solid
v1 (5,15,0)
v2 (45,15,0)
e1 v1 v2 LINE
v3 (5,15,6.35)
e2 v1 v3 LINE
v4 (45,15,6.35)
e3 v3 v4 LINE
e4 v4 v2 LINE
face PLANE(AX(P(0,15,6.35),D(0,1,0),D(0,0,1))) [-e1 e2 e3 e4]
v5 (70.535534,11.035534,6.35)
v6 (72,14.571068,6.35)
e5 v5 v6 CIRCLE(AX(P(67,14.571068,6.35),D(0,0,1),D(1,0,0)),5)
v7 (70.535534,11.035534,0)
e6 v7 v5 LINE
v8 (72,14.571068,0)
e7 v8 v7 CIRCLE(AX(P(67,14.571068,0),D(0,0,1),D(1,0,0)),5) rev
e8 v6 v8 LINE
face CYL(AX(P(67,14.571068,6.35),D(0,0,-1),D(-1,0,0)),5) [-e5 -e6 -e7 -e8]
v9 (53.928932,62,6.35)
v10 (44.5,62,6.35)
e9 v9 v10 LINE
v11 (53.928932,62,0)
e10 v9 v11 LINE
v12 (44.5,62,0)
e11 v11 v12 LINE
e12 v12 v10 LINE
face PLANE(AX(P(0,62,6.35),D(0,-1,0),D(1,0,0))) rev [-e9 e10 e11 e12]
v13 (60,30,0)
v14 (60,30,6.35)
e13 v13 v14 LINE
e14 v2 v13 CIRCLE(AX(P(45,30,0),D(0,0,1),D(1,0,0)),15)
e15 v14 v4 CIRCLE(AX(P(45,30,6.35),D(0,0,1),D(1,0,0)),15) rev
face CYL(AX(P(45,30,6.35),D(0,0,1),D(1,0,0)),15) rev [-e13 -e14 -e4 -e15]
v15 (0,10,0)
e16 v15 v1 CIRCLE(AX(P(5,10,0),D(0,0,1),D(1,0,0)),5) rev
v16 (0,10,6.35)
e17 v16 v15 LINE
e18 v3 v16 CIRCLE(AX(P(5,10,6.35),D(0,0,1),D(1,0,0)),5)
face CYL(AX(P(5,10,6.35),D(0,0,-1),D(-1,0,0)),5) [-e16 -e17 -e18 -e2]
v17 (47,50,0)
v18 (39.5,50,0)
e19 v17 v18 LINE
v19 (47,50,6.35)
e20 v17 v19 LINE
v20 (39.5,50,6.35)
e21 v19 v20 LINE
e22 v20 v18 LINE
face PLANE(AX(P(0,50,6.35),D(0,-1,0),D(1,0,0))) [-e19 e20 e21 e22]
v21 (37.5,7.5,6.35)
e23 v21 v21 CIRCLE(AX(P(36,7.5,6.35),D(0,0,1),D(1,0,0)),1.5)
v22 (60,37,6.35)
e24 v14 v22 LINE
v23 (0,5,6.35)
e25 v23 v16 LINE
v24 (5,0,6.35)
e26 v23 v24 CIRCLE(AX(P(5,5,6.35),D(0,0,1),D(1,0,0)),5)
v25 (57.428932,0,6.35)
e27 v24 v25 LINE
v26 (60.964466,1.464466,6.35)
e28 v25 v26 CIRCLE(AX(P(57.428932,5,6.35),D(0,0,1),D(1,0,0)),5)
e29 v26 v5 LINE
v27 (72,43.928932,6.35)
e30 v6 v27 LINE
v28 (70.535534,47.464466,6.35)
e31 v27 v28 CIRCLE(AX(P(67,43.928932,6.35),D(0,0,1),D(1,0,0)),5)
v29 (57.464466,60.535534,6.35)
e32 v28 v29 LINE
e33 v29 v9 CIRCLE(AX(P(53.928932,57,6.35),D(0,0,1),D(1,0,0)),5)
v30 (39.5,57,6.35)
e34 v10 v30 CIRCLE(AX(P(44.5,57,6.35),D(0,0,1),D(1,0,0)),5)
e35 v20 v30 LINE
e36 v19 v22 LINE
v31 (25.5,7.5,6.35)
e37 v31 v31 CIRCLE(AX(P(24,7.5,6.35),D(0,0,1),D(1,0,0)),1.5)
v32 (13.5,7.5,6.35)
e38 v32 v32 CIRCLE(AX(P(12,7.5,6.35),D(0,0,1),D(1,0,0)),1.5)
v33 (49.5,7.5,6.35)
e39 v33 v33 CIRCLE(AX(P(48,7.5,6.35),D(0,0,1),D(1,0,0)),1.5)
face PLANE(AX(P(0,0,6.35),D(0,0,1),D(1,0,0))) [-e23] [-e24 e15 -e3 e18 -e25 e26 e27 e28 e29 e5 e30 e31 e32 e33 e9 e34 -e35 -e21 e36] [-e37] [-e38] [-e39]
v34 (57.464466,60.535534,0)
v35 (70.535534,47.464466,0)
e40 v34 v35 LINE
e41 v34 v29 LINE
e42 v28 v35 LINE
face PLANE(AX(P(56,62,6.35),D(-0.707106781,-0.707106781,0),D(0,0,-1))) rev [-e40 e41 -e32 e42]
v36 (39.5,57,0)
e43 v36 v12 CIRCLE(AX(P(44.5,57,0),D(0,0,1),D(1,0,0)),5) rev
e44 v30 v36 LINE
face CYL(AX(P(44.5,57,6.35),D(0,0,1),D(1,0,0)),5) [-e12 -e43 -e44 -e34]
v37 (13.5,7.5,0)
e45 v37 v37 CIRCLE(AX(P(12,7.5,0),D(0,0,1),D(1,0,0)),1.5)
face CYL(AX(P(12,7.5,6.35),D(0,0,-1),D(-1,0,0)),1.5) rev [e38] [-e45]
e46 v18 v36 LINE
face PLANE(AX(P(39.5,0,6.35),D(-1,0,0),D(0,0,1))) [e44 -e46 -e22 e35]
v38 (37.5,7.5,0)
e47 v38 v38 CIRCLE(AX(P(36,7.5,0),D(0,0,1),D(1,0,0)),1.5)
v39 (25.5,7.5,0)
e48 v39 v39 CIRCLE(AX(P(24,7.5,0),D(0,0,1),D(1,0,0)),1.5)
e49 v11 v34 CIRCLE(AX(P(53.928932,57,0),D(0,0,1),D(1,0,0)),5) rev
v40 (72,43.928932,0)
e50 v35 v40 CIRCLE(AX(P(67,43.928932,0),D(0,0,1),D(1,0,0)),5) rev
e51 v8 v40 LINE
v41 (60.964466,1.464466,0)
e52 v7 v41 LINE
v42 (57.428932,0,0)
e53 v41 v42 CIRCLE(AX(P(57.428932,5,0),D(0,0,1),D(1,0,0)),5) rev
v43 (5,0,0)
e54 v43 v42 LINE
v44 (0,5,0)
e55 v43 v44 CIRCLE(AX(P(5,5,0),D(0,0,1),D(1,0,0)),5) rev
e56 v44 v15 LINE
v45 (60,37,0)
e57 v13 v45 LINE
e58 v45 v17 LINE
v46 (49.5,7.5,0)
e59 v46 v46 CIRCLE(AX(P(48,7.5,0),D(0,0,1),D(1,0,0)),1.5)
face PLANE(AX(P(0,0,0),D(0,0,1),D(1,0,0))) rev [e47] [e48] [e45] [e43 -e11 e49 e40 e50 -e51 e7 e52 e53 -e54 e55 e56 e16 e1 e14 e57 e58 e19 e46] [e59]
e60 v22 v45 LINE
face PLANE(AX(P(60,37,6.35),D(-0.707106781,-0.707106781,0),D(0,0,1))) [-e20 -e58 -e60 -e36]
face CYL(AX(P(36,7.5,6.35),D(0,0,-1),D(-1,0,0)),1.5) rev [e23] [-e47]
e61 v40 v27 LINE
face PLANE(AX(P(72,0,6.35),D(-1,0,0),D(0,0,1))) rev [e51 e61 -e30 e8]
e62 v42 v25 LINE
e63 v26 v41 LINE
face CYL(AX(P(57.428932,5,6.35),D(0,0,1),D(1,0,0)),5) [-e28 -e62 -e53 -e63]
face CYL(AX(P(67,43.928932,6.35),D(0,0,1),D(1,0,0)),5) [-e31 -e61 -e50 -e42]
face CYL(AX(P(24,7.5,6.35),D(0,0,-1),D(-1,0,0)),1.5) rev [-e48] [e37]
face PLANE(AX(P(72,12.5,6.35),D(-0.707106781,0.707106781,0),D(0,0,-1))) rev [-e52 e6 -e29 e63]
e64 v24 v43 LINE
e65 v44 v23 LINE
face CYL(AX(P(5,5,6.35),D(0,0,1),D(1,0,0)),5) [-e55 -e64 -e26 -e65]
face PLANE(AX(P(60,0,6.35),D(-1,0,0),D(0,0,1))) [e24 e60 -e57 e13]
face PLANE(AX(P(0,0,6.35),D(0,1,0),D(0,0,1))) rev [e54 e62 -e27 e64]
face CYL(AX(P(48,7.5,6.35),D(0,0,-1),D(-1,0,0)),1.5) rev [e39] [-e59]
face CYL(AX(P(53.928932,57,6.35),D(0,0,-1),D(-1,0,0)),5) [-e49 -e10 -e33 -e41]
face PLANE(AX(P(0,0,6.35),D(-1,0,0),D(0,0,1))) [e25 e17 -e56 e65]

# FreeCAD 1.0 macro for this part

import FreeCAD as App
import Part
import Sketcher
Q = App.Units.Quantity


def edges_at(feature, points):
    """Names of the edges that pass closest to the given points."""
    edges = feature.Shape.Edges
    near = lambda p: min(range(len(edges)), key=lambda i: edges[i].distToShape(Part.Vertex(*p))[0])
    return sorted({f"Edge{near(p) + 1}" for p in points})

doc = App.newDocument("Part")
body = doc.addObject("PartDesign::Body", "Body")

# Sketch on XY plane
sketch1 = doc.addObject("Sketcher::SketchObject", "Sketch")
body.addObject(sketch1)
sketch1.AttachmentSupport = (doc.XY_Plane, [""])
sketch1.MapMode = "FlatFace"
sketch1.addGeometry(Part.LineSegment(App.Vector(0, 15, 0), App.Vector(0, 0, 0)), False)
sketch1.addGeometry(Part.LineSegment(App.Vector(0, 0, 0), App.Vector(72, 0, 0)), False)
sketch1.addGeometry(Part.LineSegment(App.Vector(72, 0, 0), App.Vector(72, 62, 0)), False)
sketch1.addGeometry(Part.LineSegment(App.Vector(72, 62, 0), App.Vector(39.5, 62, 0)), False)
sketch1.addGeometry(Part.LineSegment(App.Vector(39.5, 62, 0), App.Vector(39.5, 50, 0)), False)
sketch1.addGeometry(Part.LineSegment(App.Vector(39.5, 50, 0), App.Vector(60, 50, 0)), False)
sketch1.addGeometry(Part.LineSegment(App.Vector(60, 50, 0), App.Vector(60, 15, 0)), False)
sketch1.addGeometry(Part.LineSegment(App.Vector(60, 15, 0), App.Vector(0, 15, 0)), False)
sketch1.addGeometry(Part.Circle(App.Vector(12, 7.5, 0), App.Vector(0, 0, 1), 1.5), False)
sketch1.addGeometry(Part.Circle(App.Vector(24, 7.5, 0), App.Vector(0, 0, 1), 1.5), False)
sketch1.addGeometry(Part.Circle(App.Vector(36, 7.5, 0), App.Vector(0, 0, 1), 1.5), False)
sketch1.addGeometry(Part.Circle(App.Vector(48, 7.5, 0), App.Vector(0, 0, 1), 1.5), False)
sketch1.addConstraint(Sketcher.Constraint("Coincident", 0, 2, 1, 1))
sketch1.addConstraint(Sketcher.Constraint("Coincident", 1, 2, 2, 1))
sketch1.addConstraint(Sketcher.Constraint("Coincident", 2, 2, 3, 1))
sketch1.addConstraint(Sketcher.Constraint("Coincident", 3, 2, 4, 1))
sketch1.addConstraint(Sketcher.Constraint("Coincident", 4, 2, 5, 1))
sketch1.addConstraint(Sketcher.Constraint("Coincident", 5, 2, 6, 1))
sketch1.addConstraint(Sketcher.Constraint("Coincident", 6, 2, 7, 1))
sketch1.addConstraint(Sketcher.Constraint("Coincident", 7, 2, 0, 1))
sketch1.addConstraint(Sketcher.Constraint("Vertical", 0))
sketch1.addConstraint(Sketcher.Constraint("Horizontal", 1))
sketch1.addConstraint(Sketcher.Constraint("Vertical", 2))
sketch1.addConstraint(Sketcher.Constraint("Horizontal", 3))
sketch1.addConstraint(Sketcher.Constraint("Vertical", 4))
sketch1.addConstraint(Sketcher.Constraint("Horizontal", 5))
sketch1.addConstraint(Sketcher.Constraint("Vertical", 6))
sketch1.addConstraint(Sketcher.Constraint("Horizontal", 7))
sketch1.addConstraint(Sketcher.Constraint("Coincident", 0, 2, -1, 1))
sketch1.addConstraint(Sketcher.Constraint("Equal", 8, 9))
sketch1.addConstraint(Sketcher.Constraint("Equal", 9, 10))
sketch1.addConstraint(Sketcher.Constraint("Equal", 10, 11))
sketch1.addConstraint(Sketcher.Constraint("Horizontal", 8, 3, 9, 3))
sketch1.addConstraint(Sketcher.Constraint("Horizontal", 9, 3, 10, 3))
sketch1.addConstraint(Sketcher.Constraint("Horizontal", 10, 3, 11, 3))
sketch1.addConstraint(Sketcher.Constraint("Diameter", 8, Q("3 mm")))
sketch1.addConstraint(Sketcher.Constraint("DistanceX", 1, 1, 1, 2, Q("72 mm")))
sketch1.addConstraint(Sketcher.Constraint("DistanceX", 7, 2, 7, 1, Q("60 mm")))
sketch1.addConstraint(Sketcher.Constraint("DistanceY", 0, 2, 0, 1, Q("15 mm")))
sketch1.addConstraint(Sketcher.Constraint("DistanceY", 2, 1, 2, 2, Q("62 mm")))
sketch1.addConstraint(Sketcher.Constraint("DistanceY", 4, 2, 4, 1, Q("12 mm")))
sketch1.addConstraint(Sketcher.Constraint("DistanceX", 3, 2, 3, 1, Q("32.5 mm")))
sketch1.addConstraint(Sketcher.Constraint("DistanceX", -1, 1, 8, 3, Q("12 mm")))
sketch1.addConstraint(Sketcher.Constraint("DistanceX", -1, 1, 9, 3, Q("24 mm")))
sketch1.addConstraint(Sketcher.Constraint("DistanceX", -1, 1, 10, 3, Q("36 mm")))
sketch1.addConstraint(Sketcher.Constraint("DistanceX", -1, 1, 11, 3, Q("48 mm")))
sketch1.addConstraint(Sketcher.Constraint("DistanceY", -1, 1, 8, 3, Q("7.5 mm")))
pad1 = doc.addObject("PartDesign::Pad", "Pad")
body.addObject(pad1)
pad1.Profile = sketch1
pad1.Length = 6.35
doc.recompute()

fillet = doc.addObject("PartDesign::Fillet", "Fillet")
body.addObject(fillet)
fillet.Base = (pad1, edges_at(pad1, [(60, 15, 3.175)]))
fillet.Radius = 15
doc.recompute()

chamfer = doc.addObject("PartDesign::Chamfer", "Chamfer")
body.addObject(chamfer)
chamfer.Base = (fillet, edges_at(fillet, [(60, 50, 3.175)]))
chamfer.Size = 13
doc.recompute()

fillet2 = doc.addObject("PartDesign::Fillet", "Fillet001")
body.addObject(fillet2)
fillet2.Base = (chamfer, edges_at(chamfer, [(39.5, 62, 3.175)]))
fillet2.Radius = 5
doc.recompute()

chamfer2 = doc.addObject("PartDesign::Chamfer", "Chamfer001")
body.addObject(chamfer2)
chamfer2.Base = (fillet2, edges_at(fillet2, [(72, 0, 3.175)]))
chamfer2.Size = 12.5
doc.recompute()

chamfer3 = doc.addObject("PartDesign::Chamfer", "Chamfer002")
body.addObject(chamfer3)
chamfer3.Base = (chamfer2, edges_at(chamfer2, [(72, 62, 3.175)]))
chamfer3.Size = 16
doc.recompute()

fillet3 = doc.addObject("PartDesign::Fillet", "Fillet002")
body.addObject(fillet3)
fillet3.Base = (chamfer3, edges_at(chamfer3, [
    (72, 12.5, 3.175),
    (59.5, 0, 3.175),
    (56, 62, 3.175),
    (72, 46, 3.175),
]))
fillet3.Radius = 5
doc.recompute()

fillet4 = doc.addObject("PartDesign::Fillet", "Fillet003")
body.addObject(fillet4)
fillet4.Base = (fillet3, edges_at(fillet3, [(0, 0, 3.175), (0, 15, 3.175)]))
fillet4.Radius = 5

doc.recompute()
